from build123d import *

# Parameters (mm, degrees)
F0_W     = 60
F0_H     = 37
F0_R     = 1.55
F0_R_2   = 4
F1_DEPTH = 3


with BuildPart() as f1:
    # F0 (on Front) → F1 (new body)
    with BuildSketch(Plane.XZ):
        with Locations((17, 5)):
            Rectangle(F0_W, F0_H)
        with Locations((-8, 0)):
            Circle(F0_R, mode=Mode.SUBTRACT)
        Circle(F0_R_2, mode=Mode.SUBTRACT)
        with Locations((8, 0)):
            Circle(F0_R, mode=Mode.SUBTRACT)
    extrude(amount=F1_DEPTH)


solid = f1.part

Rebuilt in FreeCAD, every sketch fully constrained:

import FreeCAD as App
import Part
import Sketcher
from FreeCAD import Vector

doc = App.newDocument("Part")
body = doc.addObject("PartDesign::Body", "Body")

sketch1 = doc.addObject("Sketcher::SketchObject", "Sketch")
body.addObject(sketch1)
sketch1.AttachmentSupport = (doc.XZ_Plane, [""])
sketch1.MapMode = "FlatFace"
sketch1.addGeometry([
    Part.LineSegment(Vector(-13, 23.5, 0), Vector(-13, -13.5, 0)),
    Part.LineSegment(Vector(-13, -13.5, 0), Vector(47, -13.5, 0)),
    Part.LineSegment(Vector(47, -13.5, 0), Vector(47, 23.5, 0)),
    Part.LineSegment(Vector(47, 23.5, 0), Vector(-13, 23.5, 0)),
    Part.Circle(Vector(-8, 0, 0), Vector(0, 0, 1), 1.55),
    Part.Circle(Vector(0, 0, 0), Vector(0, 0, 1), 4),
    Part.Circle(Vector(8, 0, 0), Vector(0, 0, 1), 1.55),
], False)
sketch1.addConstraint([
    Sketcher.Constraint("Coincident", 0, 2, 1, 1),
    Sketcher.Constraint("Coincident", 1, 2, 2, 1),
    Sketcher.Constraint("Coincident", 2, 2, 3, 1),
    Sketcher.Constraint("Coincident", 3, 2, 0, 1),
    Sketcher.Constraint("Vertical", 0),
    Sketcher.Constraint("Horizontal", 1),
    Sketcher.Constraint("Vertical", 2),
    Sketcher.Constraint("Horizontal", 3),
    Sketcher.Constraint("Coincident", 5, 3, -1, 1),
    Sketcher.Constraint("Equal", 4, 6),
    Sketcher.Constraint("Symmetric", 4, 3, 6, 3, -1, 1),
    Sketcher.Constraint("PointOnObject", 4, 3, -1),
    Sketcher.Constraint("Diameter", 5, 8.0),
    Sketcher.Constraint("Diameter", 4, 3.1),
    Sketcher.Constraint("DistanceX", 1, 1, 1, 2, 60.0),
    Sketcher.Constraint("DistanceY", 0, 2, 0, 1, 37.0),
    Sketcher.Constraint("DistanceX", 4, 3, -1, 1, 8.0),
    Sketcher.Constraint("DistanceX", 0, 2, -1, 1, 13.0),
    Sketcher.Constraint("DistanceY", 0, 2, -1, 1, 13.5),
])
pad1 = doc.addObject("PartDesign::Pad", "Pad")
body.addObject(pad1)
pad1.Profile = sketch1
pad1.Length = 3

doc.recompute()
